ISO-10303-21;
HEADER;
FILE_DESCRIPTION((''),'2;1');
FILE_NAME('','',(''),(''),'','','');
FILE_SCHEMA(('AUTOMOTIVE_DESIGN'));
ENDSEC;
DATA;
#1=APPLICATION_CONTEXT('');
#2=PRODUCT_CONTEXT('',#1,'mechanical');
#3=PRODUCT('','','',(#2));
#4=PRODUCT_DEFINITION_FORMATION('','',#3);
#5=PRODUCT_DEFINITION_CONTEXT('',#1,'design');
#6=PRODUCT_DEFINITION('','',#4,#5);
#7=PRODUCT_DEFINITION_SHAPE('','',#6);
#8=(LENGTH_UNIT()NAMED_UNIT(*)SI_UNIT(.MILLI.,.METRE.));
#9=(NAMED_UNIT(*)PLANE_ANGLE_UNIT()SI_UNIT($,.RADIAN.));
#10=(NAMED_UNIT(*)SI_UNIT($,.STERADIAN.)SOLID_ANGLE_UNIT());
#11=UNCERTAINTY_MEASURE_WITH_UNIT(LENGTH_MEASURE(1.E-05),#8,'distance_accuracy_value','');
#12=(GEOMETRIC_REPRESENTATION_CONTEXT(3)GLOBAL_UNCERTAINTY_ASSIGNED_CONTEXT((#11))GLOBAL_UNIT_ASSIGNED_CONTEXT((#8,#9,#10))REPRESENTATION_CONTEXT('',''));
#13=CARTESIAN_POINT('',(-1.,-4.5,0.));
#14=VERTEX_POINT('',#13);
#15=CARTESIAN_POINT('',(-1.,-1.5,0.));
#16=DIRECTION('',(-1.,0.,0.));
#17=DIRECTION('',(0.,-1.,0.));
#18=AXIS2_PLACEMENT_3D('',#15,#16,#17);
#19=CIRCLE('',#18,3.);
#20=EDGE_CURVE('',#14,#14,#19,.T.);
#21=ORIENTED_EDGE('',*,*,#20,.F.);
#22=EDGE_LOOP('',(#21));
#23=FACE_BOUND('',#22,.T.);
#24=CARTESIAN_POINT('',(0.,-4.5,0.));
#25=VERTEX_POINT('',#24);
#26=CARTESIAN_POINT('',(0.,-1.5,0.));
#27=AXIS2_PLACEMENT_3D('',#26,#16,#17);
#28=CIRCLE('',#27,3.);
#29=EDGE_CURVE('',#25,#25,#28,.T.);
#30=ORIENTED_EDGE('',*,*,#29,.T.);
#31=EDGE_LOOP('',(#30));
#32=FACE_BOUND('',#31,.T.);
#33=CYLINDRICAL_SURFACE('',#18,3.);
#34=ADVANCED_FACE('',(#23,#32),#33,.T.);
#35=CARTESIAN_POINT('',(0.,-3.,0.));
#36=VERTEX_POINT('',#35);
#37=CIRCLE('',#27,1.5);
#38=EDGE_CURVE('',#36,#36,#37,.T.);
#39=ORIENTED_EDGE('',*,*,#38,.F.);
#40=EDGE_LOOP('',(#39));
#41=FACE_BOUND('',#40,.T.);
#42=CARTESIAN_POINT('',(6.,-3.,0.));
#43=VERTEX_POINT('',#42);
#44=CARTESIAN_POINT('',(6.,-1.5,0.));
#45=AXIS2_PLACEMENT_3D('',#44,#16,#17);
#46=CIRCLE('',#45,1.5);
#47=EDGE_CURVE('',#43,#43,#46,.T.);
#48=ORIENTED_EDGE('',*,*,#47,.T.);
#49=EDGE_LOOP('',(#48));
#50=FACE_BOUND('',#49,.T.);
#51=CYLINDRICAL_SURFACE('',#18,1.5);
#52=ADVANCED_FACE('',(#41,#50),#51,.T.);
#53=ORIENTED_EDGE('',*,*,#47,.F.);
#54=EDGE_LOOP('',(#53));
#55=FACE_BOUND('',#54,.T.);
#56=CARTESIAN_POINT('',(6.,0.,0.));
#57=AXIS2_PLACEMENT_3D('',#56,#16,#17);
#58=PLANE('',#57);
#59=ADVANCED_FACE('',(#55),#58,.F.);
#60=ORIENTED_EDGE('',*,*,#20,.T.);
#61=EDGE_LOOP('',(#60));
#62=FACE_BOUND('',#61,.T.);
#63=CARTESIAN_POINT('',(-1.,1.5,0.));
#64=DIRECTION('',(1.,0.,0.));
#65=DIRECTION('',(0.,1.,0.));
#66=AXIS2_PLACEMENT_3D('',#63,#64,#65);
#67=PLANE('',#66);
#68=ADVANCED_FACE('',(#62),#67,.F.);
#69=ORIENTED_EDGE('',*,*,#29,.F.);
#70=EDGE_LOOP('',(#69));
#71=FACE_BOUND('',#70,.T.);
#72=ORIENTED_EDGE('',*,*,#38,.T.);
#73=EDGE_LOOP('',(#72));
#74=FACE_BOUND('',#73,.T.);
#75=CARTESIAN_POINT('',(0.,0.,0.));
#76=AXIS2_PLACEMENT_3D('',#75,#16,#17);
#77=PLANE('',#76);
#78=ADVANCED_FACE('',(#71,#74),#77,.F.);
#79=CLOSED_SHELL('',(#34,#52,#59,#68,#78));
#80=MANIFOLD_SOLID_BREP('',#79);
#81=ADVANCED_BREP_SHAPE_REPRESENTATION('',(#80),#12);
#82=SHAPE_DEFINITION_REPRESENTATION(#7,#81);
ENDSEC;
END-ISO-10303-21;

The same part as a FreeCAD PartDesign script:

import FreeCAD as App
import Part
import Sketcher
from FreeCAD import Vector
Q = App.Units.Quantity


def add_polygon(sketch, points):
    """Adds a closed chain of lines whose ends are joined by coincident constraints."""
    first, n = sketch.GeometryCount, len(points)
    for a, b in zip(points, points[1:] + points[:1]):
        sketch.addGeometry(Part.LineSegment(App.Vector(*a, 0), App.Vector(*b, 0)), False)
    for i in range(n):
        sketch.addConstraint(Sketcher.Constraint("Coincident", first + i, 2, first + (i + 1) % n, 1))

doc = App.newDocument("Part")
body = doc.addObject("PartDesign::Body", "Body")

# Sketch on XY plane
sketch1 = body.newObject("Sketcher::SketchObject", "Sketch")
sketch1.AttachmentSupport = (doc.getObject("XY_Plane"), [""])
sketch1.MapMode = "FlatFace"
add_polygon(sketch1, [(6, 0), (0, 0), (0, 1.5), (-1, 1.5), (-1, -1.5), (6, -1.5)])  # lines 0-5
sketch1.addGeometry(Part.LineSegment(Vector(-1, -1.5, 0), Vector(6, -1.5, 0)), True)  # axis
sketch1.addConstraint(Sketcher.Constraint("Horizontal", 0))
sketch1.addConstraint(Sketcher.Constraint("Vertical", 1))
sketch1.addConstraint(Sketcher.Constraint("Horizontal", 2))
sketch1.addConstraint(Sketcher.Constraint("Vertical", 3))
sketch1.addConstraint(Sketcher.Constraint("Horizontal", 4))
sketch1.addConstraint(Sketcher.Constraint("Vertical", 5))
sketch1.addConstraint(Sketcher.Constraint("Horizontal", 6))
sketch1.addConstraint(Sketcher.Constraint("Coincident", 0, 2, -1, 1))
sketch1.addConstraint(Sketcher.Constraint("Coincident", 6, 1, 3, 2))
sketch1.addConstraint(Sketcher.Constraint("Vertical", 5, 2, 6, 2))
sketch1.addConstraint(Sketcher.Constraint("Equal", 1, 5))
sketch1.addConstraint(Sketcher.Constraint("DistanceX", 0, 2, 0, 1, Q("6 mm")))
sketch1.addConstraint(Sketcher.Constraint("DistanceX", 2, 2, 2, 1, Q("1 mm")))
sketch1.addConstraint(Sketcher.Constraint("DistanceY", 3, 2, 3, 1, Q("3 mm")))
revolution = body.newObject("PartDesign::Revolution", "Revolution")
revolution.Profile = sketch1
revolution.ReferenceAxis = (sketch1, ["Axis0"])
revolution.Angle = 360

doc.recompute()
